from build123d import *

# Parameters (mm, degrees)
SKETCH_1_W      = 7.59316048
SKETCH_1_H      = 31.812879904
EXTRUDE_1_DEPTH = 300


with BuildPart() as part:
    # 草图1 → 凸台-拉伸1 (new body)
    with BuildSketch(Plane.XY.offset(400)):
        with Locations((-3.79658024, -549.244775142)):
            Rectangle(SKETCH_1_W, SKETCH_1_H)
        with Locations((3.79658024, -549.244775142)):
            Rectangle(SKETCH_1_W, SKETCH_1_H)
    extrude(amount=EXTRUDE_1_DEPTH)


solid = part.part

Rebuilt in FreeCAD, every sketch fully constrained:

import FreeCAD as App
import Part
import Sketcher
Q = App.Units.Quantity


def add_polygon(sketch, points):
    """Adds a closed chain of lines whose ends are joined by coincident constraints."""
    first, n = sketch.GeometryCount, len(points)
    for a, b in zip(points, points[1:] + points[:1]):
        sketch.addGeometry(Part.LineSegment(App.Vector(*a, 0), App.Vector(*b, 0)), False)
    for i in range(n):
        sketch.addConstraint(Sketcher.Constraint("Coincident", first + i, 2, first + (i + 1) % n, 1))

doc = App.newDocument("Part")
body = doc.addObject("PartDesign::Body", "Body")

# Sketch on XY plane
sketch1 = doc.addObject("Sketcher::SketchObject", "Sketch")
body.addObject(sketch1)
sketch1.AttachmentSupport = (doc.XY_Plane, [""])
sketch1.MapMode = "FlatFace"
sketch1.AttachmentOffset = App.Placement(App.Vector(0, 0, 400), App.Rotation())
add_polygon(sketch1, [(-8, -533), (-8, -565), (8, -565), (8, -533)])  # lines 0-3
sketch1.addConstraint(Sketcher.Constraint("Vertical", 0))
sketch1.addConstraint(Sketcher.Constraint("Horizontal", 1))
sketch1.addConstraint(Sketcher.Constraint("Vertical", 2))
sketch1.addConstraint(Sketcher.Constraint("Horizontal", 3))
sketch1.addConstraint(Sketcher.Constraint("DistanceX", 1, 1, 1, 2, Q("15.186321 mm")))
sketch1.addConstraint(Sketcher.Constraint("DistanceY", 0, 2, 0, 1, Q("31.81288 mm")))
sketch1.addConstraint(Sketcher.Constraint("DistanceX", 0, 2, -1, 1, Q("7.59316 mm")))
sketch1.addConstraint(Sketcher.Constraint("DistanceY", 0, 2, -1, 1, Q("565.151215 mm")))
pad1 = doc.addObject("PartDesign::Pad", "Pad")
body.addObject(pad1)
pad1.Profile = sketch1
pad1.Length = 300

doc.recompute()
